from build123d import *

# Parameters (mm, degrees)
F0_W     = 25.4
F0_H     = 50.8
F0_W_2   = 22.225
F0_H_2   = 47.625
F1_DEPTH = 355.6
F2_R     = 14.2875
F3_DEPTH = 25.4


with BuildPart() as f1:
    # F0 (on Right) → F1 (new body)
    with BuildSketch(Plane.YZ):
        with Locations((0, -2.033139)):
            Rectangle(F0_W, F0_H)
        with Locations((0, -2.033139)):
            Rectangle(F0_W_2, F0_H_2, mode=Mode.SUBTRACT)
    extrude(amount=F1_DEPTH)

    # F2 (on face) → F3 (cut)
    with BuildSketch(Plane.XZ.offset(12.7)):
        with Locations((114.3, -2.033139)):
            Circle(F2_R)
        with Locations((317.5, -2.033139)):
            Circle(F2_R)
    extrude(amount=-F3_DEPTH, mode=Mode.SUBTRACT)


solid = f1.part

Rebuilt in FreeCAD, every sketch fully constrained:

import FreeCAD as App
import Part
import Sketcher
Q = App.Units.Quantity


def add_polygon(sketch, points):
    """Adds a closed chain of lines whose ends are joined by coincident constraints."""
    first, n = sketch.GeometryCount, len(points)
    for a, b in zip(points, points[1:] + points[:1]):
        sketch.addGeometry(Part.LineSegment(App.Vector(*a, 0), App.Vector(*b, 0)), False)
    for i in range(n):
        sketch.addConstraint(Sketcher.Constraint("Coincident", first + i, 2, first + (i + 1) % n, 1))

doc = App.newDocument("Part")
body = doc.addObject("PartDesign::Body", "Body")

sketch1 = body.newObject("Sketcher::SketchObject", "Sketch")
sketch1.AttachmentSupport = (doc.getObject("YZ_Plane"), [""])
sketch1.MapMode = "FlatFace"
add_polygon(sketch1, [(-13, 23), (-13, -27), (13, -27), (13, 23)])
add_polygon(sketch1, [(11, -26), (-11, -26), (-11, 22), (11, 22)])
sketch1.addConstraint(Sketcher.Constraint("Vertical", 0))
sketch1.addConstraint(Sketcher.Constraint("Horizontal", 1))
sketch1.addConstraint(Sketcher.Constraint("Vertical", 2))
sketch1.addConstraint(Sketcher.Constraint("Horizontal", 3))
sketch1.addConstraint(Sketcher.Constraint("Horizontal", 4))
sketch1.addConstraint(Sketcher.Constraint("Vertical", 5))
sketch1.addConstraint(Sketcher.Constraint("Horizontal", 6))
sketch1.addConstraint(Sketcher.Constraint("Vertical", 7))
sketch1.addConstraint(Sketcher.Constraint("DistanceX", 1, 1, 1, 2, Q("1 in")))
sketch1.addConstraint(Sketcher.Constraint("DistanceY", 0, 2, 0, 1, Q("2 in")))
sketch1.addConstraint(Sketcher.Constraint("DistanceX", 0, 2, -1, 1, Q("0.5 in")))
sketch1.addConstraint(Sketcher.Constraint("DistanceX", 4, 2, 4, 1, Q("0.875 in")))
sketch1.addConstraint(Sketcher.Constraint("DistanceY", 5, 1, 5, 2, Q("1.875 in")))
sketch1.addConstraint(Sketcher.Constraint("DistanceX", 4, 2, -1, 1, Q("0.4375 in")))
sketch1.addConstraint(Sketcher.Constraint("DistanceY", 0, 2, 4, 2, Q("0.0625 in")))
sketch1.addConstraint(Sketcher.Constraint("DistanceY", 0, 2, -1, 1, 27.433139))
pad1 = body.newObject("PartDesign::Pad", "Pad")
pad1.Profile = sketch1
pad1.Length = Q("14 in")

sketch2 = body.newObject("Sketcher::SketchObject", "Sketch001")
sketch2.AttachmentSupport = (doc.getObject("XZ_Plane"), [""])
sketch2.MapMode = "FlatFace"
sketch2.AttachmentOffset = App.Placement(App.Vector(0, 0, 0.5 * 25.4), App.Rotation())
sketch2.addGeometry(Part.Circle(App.Vector(114, -2, 0), App.Vector(0, 0, 1), 14), False)
sketch2.addGeometry(Part.Circle(App.Vector(318, -2, 0), App.Vector(0, 0, 1), 14), False)
sketch2.addConstraint(Sketcher.Constraint("Equal", 0, 1))
sketch2.addConstraint(Sketcher.Constraint("Horizontal", 0, 3, 1, 3))
sketch2.addConstraint(Sketcher.Constraint("Diameter", 0, Q("1.125 in")))
sketch2.addConstraint(Sketcher.Constraint("DistanceX", 0, 3, 1, 3, Q("8 in")))
sketch2.addConstraint(Sketcher.Constraint("DistanceX", -1, 1, 0, 3, Q("4.5 in")))
sketch2.addConstraint(Sketcher.Constraint("DistanceY", 0, 3, -1, 1, 2.033139))
pocket1 = body.newObject("PartDesign::Pocket", "Pocket")
pocket1.Profile = sketch2
pocket1.Length = Q("1 in")

doc.recompute()
